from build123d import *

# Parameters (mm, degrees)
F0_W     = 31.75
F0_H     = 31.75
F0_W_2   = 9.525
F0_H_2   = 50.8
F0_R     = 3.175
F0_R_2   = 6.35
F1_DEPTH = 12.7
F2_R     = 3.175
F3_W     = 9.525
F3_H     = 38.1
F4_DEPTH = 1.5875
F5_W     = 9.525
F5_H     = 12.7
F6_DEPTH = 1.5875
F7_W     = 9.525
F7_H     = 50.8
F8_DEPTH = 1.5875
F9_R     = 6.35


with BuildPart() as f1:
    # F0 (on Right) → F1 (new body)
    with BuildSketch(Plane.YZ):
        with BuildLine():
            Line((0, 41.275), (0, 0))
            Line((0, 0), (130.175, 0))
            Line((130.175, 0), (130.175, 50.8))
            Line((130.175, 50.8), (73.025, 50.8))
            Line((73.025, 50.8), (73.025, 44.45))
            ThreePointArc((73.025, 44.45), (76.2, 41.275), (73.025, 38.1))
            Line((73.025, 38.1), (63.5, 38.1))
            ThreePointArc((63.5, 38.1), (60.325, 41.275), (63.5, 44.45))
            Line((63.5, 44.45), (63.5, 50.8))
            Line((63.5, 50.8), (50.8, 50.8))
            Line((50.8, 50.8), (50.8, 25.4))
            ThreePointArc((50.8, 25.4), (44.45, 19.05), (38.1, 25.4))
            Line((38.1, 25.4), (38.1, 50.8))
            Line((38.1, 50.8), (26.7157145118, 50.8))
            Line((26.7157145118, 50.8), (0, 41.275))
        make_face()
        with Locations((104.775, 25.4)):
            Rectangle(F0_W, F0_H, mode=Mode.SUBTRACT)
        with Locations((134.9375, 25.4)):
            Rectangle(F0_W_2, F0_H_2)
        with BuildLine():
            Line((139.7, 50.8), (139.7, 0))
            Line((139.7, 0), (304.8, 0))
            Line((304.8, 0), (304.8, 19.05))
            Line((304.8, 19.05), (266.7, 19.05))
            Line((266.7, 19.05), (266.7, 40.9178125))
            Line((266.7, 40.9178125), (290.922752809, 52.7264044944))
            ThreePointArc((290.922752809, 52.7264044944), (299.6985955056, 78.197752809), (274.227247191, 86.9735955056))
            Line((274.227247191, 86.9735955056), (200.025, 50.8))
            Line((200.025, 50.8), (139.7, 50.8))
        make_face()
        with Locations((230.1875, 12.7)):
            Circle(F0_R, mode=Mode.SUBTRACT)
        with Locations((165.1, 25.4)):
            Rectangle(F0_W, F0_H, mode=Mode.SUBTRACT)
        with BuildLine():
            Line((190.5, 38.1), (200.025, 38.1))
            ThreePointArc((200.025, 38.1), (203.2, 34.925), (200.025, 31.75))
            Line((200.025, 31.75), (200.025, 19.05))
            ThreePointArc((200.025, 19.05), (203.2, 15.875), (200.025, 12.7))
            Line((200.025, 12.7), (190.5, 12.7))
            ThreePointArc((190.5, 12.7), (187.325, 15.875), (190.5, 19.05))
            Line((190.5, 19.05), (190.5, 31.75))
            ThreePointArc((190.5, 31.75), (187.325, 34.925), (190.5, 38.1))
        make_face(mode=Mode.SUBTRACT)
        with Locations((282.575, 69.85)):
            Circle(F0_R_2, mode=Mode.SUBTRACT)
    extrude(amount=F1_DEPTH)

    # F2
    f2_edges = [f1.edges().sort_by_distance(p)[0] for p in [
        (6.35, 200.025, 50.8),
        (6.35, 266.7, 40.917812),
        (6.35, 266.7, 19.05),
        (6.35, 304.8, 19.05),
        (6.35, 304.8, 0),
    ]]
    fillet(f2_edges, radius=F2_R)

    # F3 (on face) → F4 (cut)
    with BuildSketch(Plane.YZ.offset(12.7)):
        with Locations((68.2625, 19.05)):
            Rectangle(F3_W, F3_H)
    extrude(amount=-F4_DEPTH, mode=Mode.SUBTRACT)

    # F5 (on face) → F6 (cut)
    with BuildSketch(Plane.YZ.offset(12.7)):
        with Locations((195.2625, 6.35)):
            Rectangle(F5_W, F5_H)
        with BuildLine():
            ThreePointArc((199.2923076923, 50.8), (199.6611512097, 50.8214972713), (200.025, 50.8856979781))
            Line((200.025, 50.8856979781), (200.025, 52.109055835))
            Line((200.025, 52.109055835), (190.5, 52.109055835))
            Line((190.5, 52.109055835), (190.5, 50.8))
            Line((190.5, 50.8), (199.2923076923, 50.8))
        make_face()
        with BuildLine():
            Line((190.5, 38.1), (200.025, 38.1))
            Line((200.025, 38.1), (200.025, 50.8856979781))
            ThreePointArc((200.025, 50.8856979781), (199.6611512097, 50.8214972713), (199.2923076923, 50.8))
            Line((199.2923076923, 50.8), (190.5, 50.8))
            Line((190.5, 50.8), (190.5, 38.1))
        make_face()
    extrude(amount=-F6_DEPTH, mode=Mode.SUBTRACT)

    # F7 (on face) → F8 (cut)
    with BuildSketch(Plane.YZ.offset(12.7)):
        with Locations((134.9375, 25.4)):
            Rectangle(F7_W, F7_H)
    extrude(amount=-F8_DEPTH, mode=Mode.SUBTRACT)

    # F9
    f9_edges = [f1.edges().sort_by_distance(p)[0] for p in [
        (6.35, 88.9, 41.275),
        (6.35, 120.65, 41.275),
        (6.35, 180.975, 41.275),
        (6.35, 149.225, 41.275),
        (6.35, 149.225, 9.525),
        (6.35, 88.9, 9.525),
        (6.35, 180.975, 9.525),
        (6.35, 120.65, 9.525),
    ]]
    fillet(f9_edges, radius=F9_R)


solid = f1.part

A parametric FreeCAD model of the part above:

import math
import FreeCAD as App
import Part
import Sketcher
Q = App.Units.Quantity


def edges_at(feature, points):
    """Names of the edges that pass closest to the given points."""
    edges = feature.Shape.Edges
    near = lambda p: min(range(len(edges)), key=lambda i: edges[i].distToShape(Part.Vertex(*p))[0])
    return sorted({f"Edge{near(p) + 1}" for p in points})

doc = App.newDocument("Part")
body = doc.addObject("PartDesign::Body", "Body")

# Sketch on YZ plane
sketch1 = body.newObject("Sketcher::SketchObject", "Sketch")
sketch1.AttachmentSupport = (doc.getObject("YZ_Plane"), [""])
sketch1.MapMode = "FlatFace"
sketch1.addGeometry([
    Part.LineSegment(App.Vector(0, 41.3, 0), App.Vector(0, 0, 0)),  # 0
    Part.LineSegment(App.Vector(0, 0, 0), App.Vector(304.8, 0, 0)),  # 1
    Part.LineSegment(App.Vector(304.8, 0, 0), App.Vector(304.8, 19.1, 0)),  # 2
    Part.LineSegment(App.Vector(304.8, 19.1, 0), App.Vector(266.7, 19.1, 0)),  # 3
    Part.LineSegment(App.Vector(266.7, 19.1, 0), App.Vector(266.7, 40.9, 0)),  # 4
    Part.LineSegment(App.Vector(266.7, 40.9, 0), App.Vector(290.9, 52.7, 0)),  # 5
    Part.ArcOfCircle(Part.Circle(App.Vector(282.6, 69.8, 0), App.Vector(0, 0, 1), 19.1), math.radians(-64), math.radians(116)),  # 6
    Part.LineSegment(App.Vector(274.2, 87, 0), App.Vector(200, 50.8, 0)),  # 7
    Part.LineSegment(App.Vector(200, 50.8, 0), App.Vector(73, 50.8, 0)),  # 8
    Part.LineSegment(App.Vector(73, 50.8, 0), App.Vector(73, 44.5, 0)),  # 9
    Part.ArcOfCircle(Part.Circle(App.Vector(73, 41.3, 0), App.Vector(0, 0, 1), 3.2), math.radians(-90), math.radians(90)),  # 10
    Part.LineSegment(App.Vector(73, 38.1, 0), App.Vector(63.5, 38.1, 0)),  # 11
    Part.ArcOfCircle(Part.Circle(App.Vector(63.5, 41.3, 0), App.Vector(0, 0, 1), 3.2), math.radians(90), math.radians(270)),  # 12
    Part.LineSegment(App.Vector(63.5, 44.5, 0), App.Vector(63.5, 50.8, 0)),  # 13
    Part.LineSegment(App.Vector(63.5, 50.8, 0), App.Vector(50.8, 50.8, 0)),  # 14
    Part.LineSegment(App.Vector(50.8, 50.8, 0), App.Vector(50.8, 25.4, 0)),  # 15
    Part.ArcOfCircle(Part.Circle(App.Vector(44.5, 25.4, 0), App.Vector(0, 0, 1), 6.3), math.radians(180), math.radians(360)),  # 16
    Part.LineSegment(App.Vector(38.1, 25.4, 0), App.Vector(38.1, 50.8, 0)),  # 17
    Part.LineSegment(App.Vector(38.1, 50.8, 0), App.Vector(26.7, 50.8, 0)),  # 18
    Part.LineSegment(App.Vector(26.7, 50.8, 0), App.Vector(0, 41.3, 0)),  # 19
    Part.LineSegment(App.Vector(120.7, 9.5, 0), App.Vector(88.9, 9.5, 0)),  # 20
    Part.LineSegment(App.Vector(88.9, 9.5, 0), App.Vector(88.9, 41.3, 0)),  # 21
    Part.LineSegment(App.Vector(88.9, 41.3, 0), App.Vector(120.7, 41.3, 0)),  # 22
    Part.LineSegment(App.Vector(120.7, 41.3, 0), App.Vector(120.7, 9.5, 0)),  # 23
    Part.LineSegment(App.Vector(181, 9.5, 0), App.Vector(149.2, 9.5, 0)),  # 24
    Part.LineSegment(App.Vector(149.2, 9.5, 0), App.Vector(149.2, 41.3, 0)),  # 25
    Part.LineSegment(App.Vector(149.2, 41.3, 0), App.Vector(181, 41.3, 0)),  # 26
    Part.LineSegment(App.Vector(181, 41.3, 0), App.Vector(181, 9.5, 0)),  # 27
    Part.Circle(App.Vector(230.2, 12.7, 0), App.Vector(0, 0, 1), 3.2),  # 28
    Part.ArcOfCircle(Part.Circle(App.Vector(190.5, 34.9, 0), App.Vector(0, 0, 1), 3.2), math.radians(90), math.radians(270)),  # 29
    Part.LineSegment(App.Vector(190.5, 38.1, 0), App.Vector(200, 38.1, 0)),  # 30
    Part.ArcOfCircle(Part.Circle(App.Vector(200, 34.9, 0), App.Vector(0, 0, 1), 3.2), math.radians(-90), math.radians(90)),  # 31
    Part.LineSegment(App.Vector(200, 31.8, 0), App.Vector(200, 19.1, 0)),  # 32
    Part.ArcOfCircle(Part.Circle(App.Vector(200, 15.9, 0), App.Vector(0, 0, 1), 3.2), math.radians(-90), math.radians(90)),  # 33
    Part.LineSegment(App.Vector(200, 12.7, 0), App.Vector(190.5, 12.7, 0)),  # 34
    Part.ArcOfCircle(Part.Circle(App.Vector(190.5, 15.9, 0), App.Vector(0, 0, 1), 3.2), math.radians(90), math.radians(270)),  # 35
    Part.LineSegment(App.Vector(190.5, 19.1, 0), App.Vector(190.5, 31.8, 0)),  # 36
    Part.Circle(App.Vector(282.6, 69.8, 0), App.Vector(0, 0, 1), 6.3),  # 37
], False)
sketch1.addConstraint([
    Sketcher.Constraint("Coincident", 0, 2, 1, 1),
    Sketcher.Constraint("Coincident", 1, 2, 2, 1),
    Sketcher.Constraint("Coincident", 2, 2, 3, 1),
    Sketcher.Constraint("Coincident", 3, 2, 4, 1),
    Sketcher.Constraint("Coincident", 4, 2, 5, 1),
    Sketcher.Constraint("Tangent", 5, 2, 6, 1),
    Sketcher.Constraint("Tangent", 6, 2, 7, 1),
    Sketcher.Constraint("Coincident", 7, 2, 8, 1),
    Sketcher.Constraint("Coincident", 8, 2, 9, 1),
    Sketcher.Constraint("Coincident", 9, 2, 10, 2),
    Sketcher.Constraint("Tangent", 10, 1, 11, 1),
    Sketcher.Constraint("Tangent", 11, 2, 12, 2),
    Sketcher.Constraint("Coincident", 12, 1, 13, 1),
    Sketcher.Constraint("Coincident", 13, 2, 14, 1),
    Sketcher.Constraint("Coincident", 14, 2, 15, 1),
    Sketcher.Constraint("Tangent", 15, 2, 16, 2),
    Sketcher.Constraint("Tangent", 16, 1, 17, 1),
    Sketcher.Constraint("Coincident", 17, 2, 18, 1),
    Sketcher.Constraint("Coincident", 18, 2, 19, 1),
    Sketcher.Constraint("Coincident", 19, 2, 0, 1),
    Sketcher.Constraint("Coincident", 20, 2, 21, 1),
    Sketcher.Constraint("Coincident", 21, 2, 22, 1),
    Sketcher.Constraint("Coincident", 22, 2, 23, 1),
    Sketcher.Constraint("Coincident", 23, 2, 20, 1),
    Sketcher.Constraint("Coincident", 24, 2, 25, 1),
    Sketcher.Constraint("Coincident", 25, 2, 26, 1),
    Sketcher.Constraint("Coincident", 26, 2, 27, 1),
    Sketcher.Constraint("Coincident", 27, 2, 24, 1),
    Sketcher.Constraint("Tangent", 29, 1, 30, 1),
    Sketcher.Constraint("Tangent", 30, 2, 31, 2),
    Sketcher.Constraint("Coincident", 31, 1, 32, 1),
    Sketcher.Constraint("Coincident", 32, 2, 33, 2),
    Sketcher.Constraint("Tangent", 33, 1, 34, 1),
    Sketcher.Constraint("Tangent", 34, 2, 35, 2),
    Sketcher.Constraint("Coincident", 35, 1, 36, 1),
    Sketcher.Constraint("Coincident", 36, 2, 29, 2),
    Sketcher.Constraint("Vertical", 0),
    Sketcher.Constraint("Horizontal", 1),
    Sketcher.Constraint("Vertical", 2),
    Sketcher.Constraint("Horizontal", 3),
    Sketcher.Constraint("Vertical", 4),
    Sketcher.Constraint("Horizontal", 8),
    Sketcher.Constraint("Vertical", 9),
    Sketcher.Constraint("Horizontal", 11),
    Sketcher.Constraint("Vertical", 13),
    Sketcher.Constraint("Horizontal", 14),
    Sketcher.Constraint("Vertical", 15),
    Sketcher.Constraint("Vertical", 17),
    Sketcher.Constraint("Horizontal", 18),
    Sketcher.Constraint("Horizontal", 20),
    Sketcher.Constraint("Vertical", 21),
    Sketcher.Constraint("Horizontal", 22),
    Sketcher.Constraint("Vertical", 23),
    Sketcher.Constraint("Horizontal", 24),
    Sketcher.Constraint("Vertical", 25),
    Sketcher.Constraint("Horizontal", 26),
    Sketcher.Constraint("Vertical", 27),
    Sketcher.Constraint("Horizontal", 30),
    Sketcher.Constraint("Vertical", 32),
    Sketcher.Constraint("Horizontal", 34),
    Sketcher.Constraint("Vertical", 36),
    Sketcher.Constraint("Coincident", 0, 2, -1, 1),
    Sketcher.Constraint("Coincident", 37, 3, 6, 3),
    Sketcher.Constraint("Equal", 10, 12),
    Sketcher.Constraint("Equal", 12, 28),
    Sketcher.Constraint("Equal", 28, 29),
    Sketcher.Constraint("Equal", 29, 31),
    Sketcher.Constraint("Equal", 31, 33),
    Sketcher.Constraint("Equal", 33, 35),
    Sketcher.Constraint("Equal", 16, 37),
    Sketcher.Constraint("Parallel", 5, 7),
    Sketcher.Constraint("Horizontal", 8, 2, 13, 2),
    Sketcher.Constraint("Horizontal", 14, 2, 17, 2),
    Sketcher.Constraint("Horizontal", 12, 3, 19, 2),
    Sketcher.Constraint("Horizontal", 19, 2, 21, 2),
    Sketcher.Constraint("Horizontal", 23, 2, 24, 2),
    Sketcher.Constraint("Horizontal", 22, 2, 25, 2),
    Sketcher.Constraint("Horizontal", 11, 2, 29, 1),
    Sketcher.Constraint("Horizontal", 3, 2, 32, 2),
    Sketcher.Constraint("Horizontal", 28, 3, 33, 1),
    Sketcher.Constraint("Vertical", 31, 3, 33, 3),
    Sketcher.Constraint("Vertical", 29, 3, 35, 3),
    Sketcher.Constraint("Vertical", 33, 3, 7, 2),
    Sketcher.Constraint("Vertical", 10, 3, 8, 2),
    Sketcher.Constraint("Vertical", 11, 2, 12, 1),
    Sketcher.Constraint("Vertical", 30, 2, 31, 1),
    Sketcher.Constraint("Vertical", 34, 2, 35, 1),
    Sketcher.Constraint("Equal", 22, 24),
    Sketcher.Constraint("Equal", 11, 30),
    Sketcher.Constraint("Equal", 26, 21),
    Sketcher.Constraint("Equal", 14, 32),
    Sketcher.Constraint("Diameter", 37, Q("0.5 in")),
    Sketcher.Constraint("Diameter", 28, Q("0.25 in")),
    Sketcher.Constraint("DistanceX", 1, 1, 1, 2, Q("12 in")),
    Sketcher.Constraint("DistanceX", 8, 2, 8, 1, Q("5 in")),
    Sketcher.Constraint("DistanceY", 15, 2, 15, 1, Q("1 in")),
    Sketcher.Constraint("Radius", 6, Q("0.75 in")),
    Sketcher.Constraint("DistanceX", 3, 2, 3, 1, Q("1.5 in")),
    Sketcher.Constraint("DistanceX", 14, 2, 14, 1, Q("0.5 in")),
    Sketcher.Constraint("DistanceY", -1, 1, 16, 3, Q("1 in")),
    Sketcher.Constraint("DistanceX", -1, 1, 14, 2, Q("2 in")),
    Sketcher.Constraint("DistanceY", 2, 2, 6, 3, Q("2 in")),
    Sketcher.Constraint("DistanceX", 11, 2, 20, 2, Q("1 in")),
    Sketcher.Constraint("DistanceY", 24, 2, 29, 3, Q("1 in")),
    Sketcher.Constraint("DistanceX", 24, 2, 33, 3, Q("2 in")),
    Sketcher.Constraint("DistanceY", 2, 1, 2, 2, Q("0.75 in")),
    Sketcher.Constraint("Distance", 7, Q("3.25 in")),
    Sketcher.Constraint("DistanceX", 11, 2, 11, 1, Q("0.375 in")),
    Sketcher.Constraint("DistanceX", -1, 1, 28, 3, Q("9.0625 in")),
    Sketcher.Constraint("DistanceX", 18, 2, 18, 1, Q("11.384285 mm")),
])
pad1 = body.newObject("PartDesign::Pad", "Pad")
pad1.Profile = sketch1
pad1.Length = Q("0.5 in")
doc.recompute()

fillet = body.newObject("PartDesign::Fillet", "Fillet")
fillet.Base = (pad1, edges_at(pad1, [
    (6.35, 200.025, 50.8),
    (6.35, 266.7, 40.918),
    (6.35, 266.7, 19.05),
    (6.35, 304.8, 19.05),
    (6.35, 304.8, 0),
]))
fillet.Radius = Q("0.125 in")

# Sketch on YZ plane
sketch2 = body.newObject("Sketcher::SketchObject", "Sketch001")
sketch2.AttachmentSupport = (doc.getObject("YZ_Plane"), [""])
sketch2.MapMode = "FlatFace"
sketch2.AttachmentOffset = App.Placement(App.Vector(0, 0, 0.5 * 25.4), App.Rotation())
sketch2.addGeometry([
    Part.LineSegment(App.Vector(64, 38, 0), App.Vector(64, 0, 0)),
    Part.LineSegment(App.Vector(64, 0, 0), App.Vector(73, 0, 0)),
    Part.LineSegment(App.Vector(73, 0, 0), App.Vector(73, 38, 0)),
    Part.LineSegment(App.Vector(73, 38, 0), App.Vector(64, 38, 0)),
], False)
sketch2.addConstraint([
    Sketcher.Constraint("Coincident", 0, 2, 1, 1),
    Sketcher.Constraint("Coincident", 1, 2, 2, 1),
    Sketcher.Constraint("Coincident", 2, 2, 3, 1),
    Sketcher.Constraint("Coincident", 3, 2, 0, 1),
    Sketcher.Constraint("Vertical", 0),
    Sketcher.Constraint("Horizontal", 1),
    Sketcher.Constraint("Vertical", 2),
    Sketcher.Constraint("Horizontal", 3),
    Sketcher.Constraint("PointOnObject", 0, 2, -1),
    Sketcher.Constraint("DistanceY", 0, 2, 0, 1, Q("1.5 in")),
    Sketcher.Constraint("DistanceX", -1, 1, 0, 2, Q("2.5 in")),
    Sketcher.Constraint("DistanceX", 1, 1, 1, 2, Q("0.375 in")),
])
pocket1 = body.newObject("PartDesign::Pocket", "Pocket")
pocket1.Profile = sketch2
pocket1.Length = Q("0.0625 in")

# Sketch on YZ plane
sketch3 = body.newObject("Sketcher::SketchObject", "Sketch002")
sketch3.AttachmentSupport = (doc.getObject("YZ_Plane"), [""])
sketch3.MapMode = "FlatFace"
sketch3.AttachmentOffset = App.Placement(App.Vector(0, 0, 0.5 * 25.4), App.Rotation())
sketch3.addGeometry([
    Part.LineSegment(App.Vector(190, 13, 0), App.Vector(190, 0, 0)),  # 0
    Part.LineSegment(App.Vector(190, 0, 0), App.Vector(200, 0, 0)),  # 1
    Part.LineSegment(App.Vector(200, 0, 0), App.Vector(200, 13, 0)),  # 2
    Part.LineSegment(App.Vector(200, 13, 0), App.Vector(190, 13, 0)),  # 3
    Part.LineSegment(App.Vector(200, 52, 0), App.Vector(190, 52, 0)),  # 4
    Part.LineSegment(App.Vector(190, 52, 0), App.Vector(190, 38, 0)),  # 5
    Part.LineSegment(App.Vector(190, 38, 0), App.Vector(200, 38, 0)),  # 6
    Part.LineSegment(App.Vector(200, 38, 0), App.Vector(200, 52, 0)),  # 7
], False)
sketch3.addConstraint([
    Sketcher.Constraint("Coincident", 0, 2, 1, 1),
    Sketcher.Constraint("Coincident", 1, 2, 2, 1),
    Sketcher.Constraint("Coincident", 2, 2, 3, 1),
    Sketcher.Constraint("Coincident", 3, 2, 0, 1),
    Sketcher.Constraint("Coincident", 4, 2, 5, 1),
    Sketcher.Constraint("Coincident", 5, 2, 6, 1),
    Sketcher.Constraint("Coincident", 6, 2, 7, 1),
    Sketcher.Constraint("Coincident", 7, 2, 4, 1),
    Sketcher.Constraint("Vertical", 0),
    Sketcher.Constraint("Horizontal", 1),
    Sketcher.Constraint("Vertical", 2),
    Sketcher.Constraint("Horizontal", 3),
    Sketcher.Constraint("Horizontal", 4),
    Sketcher.Constraint("Vertical", 5),
    Sketcher.Constraint("Horizontal", 6),
    Sketcher.Constraint("Vertical", 7),
    Sketcher.Constraint("PointOnObject", 0, 2, -1),
    Sketcher.Constraint("Vertical", 3, 2, 4, 2),
    Sketcher.Constraint("Vertical", 2, 2, 6, 2),
    Sketcher.Constraint("DistanceY", 0, 2, 0, 1, Q("0.5 in")),
    Sketcher.Constraint("DistanceY", 3, 2, 5, 2, Q("1 in")),
    Sketcher.Constraint("DistanceX", -1, 1, 0, 2, Q("7.5 in")),
    Sketcher.Constraint("DistanceX", 1, 1, 1, 2, Q("0.375 in")),
    Sketcher.Constraint("DistanceY", 5, 2, 5, 1, Q("14.009056 mm")),
])
pocket2 = body.newObject("PartDesign::Pocket", "Pocket001")
pocket2.Profile = sketch3
pocket2.Length = Q("0.0625 in")

# Sketch on YZ plane
sketch4 = body.newObject("Sketcher::SketchObject", "Sketch003")
sketch4.AttachmentSupport = (doc.getObject("YZ_Plane"), [""])
sketch4.MapMode = "FlatFace"
sketch4.AttachmentOffset = App.Placement(App.Vector(0, 0, 0.5 * 25.4), App.Rotation())
sketch4.addGeometry([
    Part.LineSegment(App.Vector(130, 51, 0), App.Vector(130, 0, 0)),
    Part.LineSegment(App.Vector(130, 0, 0), App.Vector(140, 0, 0)),
    Part.LineSegment(App.Vector(140, 0, 0), App.Vector(140, 51, 0)),
    Part.LineSegment(App.Vector(140, 51, 0), App.Vector(130, 51, 0)),
], False)
sketch4.addConstraint([
    Sketcher.Constraint("Coincident", 0, 2, 1, 1),
    Sketcher.Constraint("Coincident", 1, 2, 2, 1),
    Sketcher.Constraint("Coincident", 2, 2, 3, 1),
    Sketcher.Constraint("Coincident", 3, 2, 0, 1),
    Sketcher.Constraint("Vertical", 0),
    Sketcher.Constraint("Horizontal", 1),
    Sketcher.Constraint("Vertical", 2),
    Sketcher.Constraint("Horizontal", 3),
    Sketcher.Constraint("PointOnObject", 0, 2, -1),
    Sketcher.Constraint("DistanceY", 0, 2, 0, 1, Q("2 in")),
    Sketcher.Constraint("DistanceX", -1, 1, 1, 2, Q("5.5 in")),
    Sketcher.Constraint("DistanceX", 1, 1, 1, 2, Q("0.375 in")),
])
pocket3 = body.newObject("PartDesign::Pocket", "Pocket002")
pocket3.Profile = sketch4
pocket3.Length = Q("0.0625 in")
doc.recompute()

fillet2 = body.newObject("PartDesign::Fillet", "Fillet001")
fillet2.Base = (pocket3, edges_at(pocket3, [
    (6.35, 88.9, 41.275),
    (6.35, 120.65, 41.275),
    (6.35, 180.975, 41.275),
    (6.35, 149.225, 41.275),
    (6.35, 149.225, 9.525),
    (6.35, 88.9, 9.525),
    (6.35, 180.975, 9.525),
    (6.35, 120.65, 9.525),
]))
fillet2.Radius = Q("0.25 in")

doc.recompute()
